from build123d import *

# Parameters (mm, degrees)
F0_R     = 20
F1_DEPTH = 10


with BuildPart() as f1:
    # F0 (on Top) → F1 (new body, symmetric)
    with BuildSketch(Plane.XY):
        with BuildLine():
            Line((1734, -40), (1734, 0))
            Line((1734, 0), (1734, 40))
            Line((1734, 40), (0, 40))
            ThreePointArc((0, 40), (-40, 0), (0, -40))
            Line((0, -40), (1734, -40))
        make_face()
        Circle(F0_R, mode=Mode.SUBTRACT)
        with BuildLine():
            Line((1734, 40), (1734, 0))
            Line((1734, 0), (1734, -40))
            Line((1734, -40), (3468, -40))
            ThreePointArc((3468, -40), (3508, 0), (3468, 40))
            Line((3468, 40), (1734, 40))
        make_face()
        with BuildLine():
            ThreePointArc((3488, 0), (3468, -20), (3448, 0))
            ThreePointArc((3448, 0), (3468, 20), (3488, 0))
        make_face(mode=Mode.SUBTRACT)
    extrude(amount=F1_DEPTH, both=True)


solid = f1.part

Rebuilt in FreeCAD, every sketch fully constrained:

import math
import FreeCAD as App
import Part
import Sketcher

V = App.Vector
Q = App.Units.Quantity

doc = App.newDocument("Part")
body = doc.addObject("PartDesign::Body", "Body")

# Sketch on XY plane
sketch1 = body.newObject("Sketcher::SketchObject", "Sketch")
sketch1.AttachmentSupport = (doc.getObject("XY_Plane"), [""])
sketch1.MapMode = "FlatFace"
sketch1.addGeometry([
    Part.LineSegment(V(0, -40, 0), V(3468, -40, 0)),  # 0
    Part.ArcOfCircle(Part.Circle(V(3468, 0, 0), V(0, 0, 1), 40), math.radians(-90), math.radians(90)),  # 1
    Part.LineSegment(V(3468, 40, 0), V(0, 40, 0)),  # 2
    Part.ArcOfCircle(Part.Circle(V(0, 0, 0), V(0, 0, 1), 40), math.radians(90), math.radians(270)),  # 3
    Part.Circle(V(0, 0, 0), V(0, 0, 1), 20),  # 4
    Part.Circle(V(3468, 0, 0), V(0, 0, 1), 20),  # 5
], False)
sketch1.addConstraint([
    Sketcher.Constraint("Tangent", 0, 2, 1, 1),
    Sketcher.Constraint("Tangent", 1, 2, 2, 1),
    Sketcher.Constraint("Tangent", 2, 2, 3, 1),
    Sketcher.Constraint("Tangent", 3, 2, 0, 1),
    Sketcher.Constraint("Horizontal", 0),
    Sketcher.Constraint("Horizontal", 2),
    Sketcher.Constraint("Coincident", 3, 3, -1, 1),
    Sketcher.Constraint("Coincident", 4, 3, -1, 1),
    Sketcher.Constraint("Coincident", 5, 3, 1, 3),
    Sketcher.Constraint("Equal", 4, 5),
    Sketcher.Constraint("Diameter", 4, Q("40 mm")),
    Sketcher.Constraint("Radius", 1, Q("40 mm")),
    Sketcher.Constraint("DistanceX", 0, 1, 0, 2, Q("3468 mm")),
])
pad1 = body.newObject("PartDesign::Pad", "Pad")
pad1.Profile = sketch1
pad1.Length = 20
pad1.Midplane = True

doc.recompute()
